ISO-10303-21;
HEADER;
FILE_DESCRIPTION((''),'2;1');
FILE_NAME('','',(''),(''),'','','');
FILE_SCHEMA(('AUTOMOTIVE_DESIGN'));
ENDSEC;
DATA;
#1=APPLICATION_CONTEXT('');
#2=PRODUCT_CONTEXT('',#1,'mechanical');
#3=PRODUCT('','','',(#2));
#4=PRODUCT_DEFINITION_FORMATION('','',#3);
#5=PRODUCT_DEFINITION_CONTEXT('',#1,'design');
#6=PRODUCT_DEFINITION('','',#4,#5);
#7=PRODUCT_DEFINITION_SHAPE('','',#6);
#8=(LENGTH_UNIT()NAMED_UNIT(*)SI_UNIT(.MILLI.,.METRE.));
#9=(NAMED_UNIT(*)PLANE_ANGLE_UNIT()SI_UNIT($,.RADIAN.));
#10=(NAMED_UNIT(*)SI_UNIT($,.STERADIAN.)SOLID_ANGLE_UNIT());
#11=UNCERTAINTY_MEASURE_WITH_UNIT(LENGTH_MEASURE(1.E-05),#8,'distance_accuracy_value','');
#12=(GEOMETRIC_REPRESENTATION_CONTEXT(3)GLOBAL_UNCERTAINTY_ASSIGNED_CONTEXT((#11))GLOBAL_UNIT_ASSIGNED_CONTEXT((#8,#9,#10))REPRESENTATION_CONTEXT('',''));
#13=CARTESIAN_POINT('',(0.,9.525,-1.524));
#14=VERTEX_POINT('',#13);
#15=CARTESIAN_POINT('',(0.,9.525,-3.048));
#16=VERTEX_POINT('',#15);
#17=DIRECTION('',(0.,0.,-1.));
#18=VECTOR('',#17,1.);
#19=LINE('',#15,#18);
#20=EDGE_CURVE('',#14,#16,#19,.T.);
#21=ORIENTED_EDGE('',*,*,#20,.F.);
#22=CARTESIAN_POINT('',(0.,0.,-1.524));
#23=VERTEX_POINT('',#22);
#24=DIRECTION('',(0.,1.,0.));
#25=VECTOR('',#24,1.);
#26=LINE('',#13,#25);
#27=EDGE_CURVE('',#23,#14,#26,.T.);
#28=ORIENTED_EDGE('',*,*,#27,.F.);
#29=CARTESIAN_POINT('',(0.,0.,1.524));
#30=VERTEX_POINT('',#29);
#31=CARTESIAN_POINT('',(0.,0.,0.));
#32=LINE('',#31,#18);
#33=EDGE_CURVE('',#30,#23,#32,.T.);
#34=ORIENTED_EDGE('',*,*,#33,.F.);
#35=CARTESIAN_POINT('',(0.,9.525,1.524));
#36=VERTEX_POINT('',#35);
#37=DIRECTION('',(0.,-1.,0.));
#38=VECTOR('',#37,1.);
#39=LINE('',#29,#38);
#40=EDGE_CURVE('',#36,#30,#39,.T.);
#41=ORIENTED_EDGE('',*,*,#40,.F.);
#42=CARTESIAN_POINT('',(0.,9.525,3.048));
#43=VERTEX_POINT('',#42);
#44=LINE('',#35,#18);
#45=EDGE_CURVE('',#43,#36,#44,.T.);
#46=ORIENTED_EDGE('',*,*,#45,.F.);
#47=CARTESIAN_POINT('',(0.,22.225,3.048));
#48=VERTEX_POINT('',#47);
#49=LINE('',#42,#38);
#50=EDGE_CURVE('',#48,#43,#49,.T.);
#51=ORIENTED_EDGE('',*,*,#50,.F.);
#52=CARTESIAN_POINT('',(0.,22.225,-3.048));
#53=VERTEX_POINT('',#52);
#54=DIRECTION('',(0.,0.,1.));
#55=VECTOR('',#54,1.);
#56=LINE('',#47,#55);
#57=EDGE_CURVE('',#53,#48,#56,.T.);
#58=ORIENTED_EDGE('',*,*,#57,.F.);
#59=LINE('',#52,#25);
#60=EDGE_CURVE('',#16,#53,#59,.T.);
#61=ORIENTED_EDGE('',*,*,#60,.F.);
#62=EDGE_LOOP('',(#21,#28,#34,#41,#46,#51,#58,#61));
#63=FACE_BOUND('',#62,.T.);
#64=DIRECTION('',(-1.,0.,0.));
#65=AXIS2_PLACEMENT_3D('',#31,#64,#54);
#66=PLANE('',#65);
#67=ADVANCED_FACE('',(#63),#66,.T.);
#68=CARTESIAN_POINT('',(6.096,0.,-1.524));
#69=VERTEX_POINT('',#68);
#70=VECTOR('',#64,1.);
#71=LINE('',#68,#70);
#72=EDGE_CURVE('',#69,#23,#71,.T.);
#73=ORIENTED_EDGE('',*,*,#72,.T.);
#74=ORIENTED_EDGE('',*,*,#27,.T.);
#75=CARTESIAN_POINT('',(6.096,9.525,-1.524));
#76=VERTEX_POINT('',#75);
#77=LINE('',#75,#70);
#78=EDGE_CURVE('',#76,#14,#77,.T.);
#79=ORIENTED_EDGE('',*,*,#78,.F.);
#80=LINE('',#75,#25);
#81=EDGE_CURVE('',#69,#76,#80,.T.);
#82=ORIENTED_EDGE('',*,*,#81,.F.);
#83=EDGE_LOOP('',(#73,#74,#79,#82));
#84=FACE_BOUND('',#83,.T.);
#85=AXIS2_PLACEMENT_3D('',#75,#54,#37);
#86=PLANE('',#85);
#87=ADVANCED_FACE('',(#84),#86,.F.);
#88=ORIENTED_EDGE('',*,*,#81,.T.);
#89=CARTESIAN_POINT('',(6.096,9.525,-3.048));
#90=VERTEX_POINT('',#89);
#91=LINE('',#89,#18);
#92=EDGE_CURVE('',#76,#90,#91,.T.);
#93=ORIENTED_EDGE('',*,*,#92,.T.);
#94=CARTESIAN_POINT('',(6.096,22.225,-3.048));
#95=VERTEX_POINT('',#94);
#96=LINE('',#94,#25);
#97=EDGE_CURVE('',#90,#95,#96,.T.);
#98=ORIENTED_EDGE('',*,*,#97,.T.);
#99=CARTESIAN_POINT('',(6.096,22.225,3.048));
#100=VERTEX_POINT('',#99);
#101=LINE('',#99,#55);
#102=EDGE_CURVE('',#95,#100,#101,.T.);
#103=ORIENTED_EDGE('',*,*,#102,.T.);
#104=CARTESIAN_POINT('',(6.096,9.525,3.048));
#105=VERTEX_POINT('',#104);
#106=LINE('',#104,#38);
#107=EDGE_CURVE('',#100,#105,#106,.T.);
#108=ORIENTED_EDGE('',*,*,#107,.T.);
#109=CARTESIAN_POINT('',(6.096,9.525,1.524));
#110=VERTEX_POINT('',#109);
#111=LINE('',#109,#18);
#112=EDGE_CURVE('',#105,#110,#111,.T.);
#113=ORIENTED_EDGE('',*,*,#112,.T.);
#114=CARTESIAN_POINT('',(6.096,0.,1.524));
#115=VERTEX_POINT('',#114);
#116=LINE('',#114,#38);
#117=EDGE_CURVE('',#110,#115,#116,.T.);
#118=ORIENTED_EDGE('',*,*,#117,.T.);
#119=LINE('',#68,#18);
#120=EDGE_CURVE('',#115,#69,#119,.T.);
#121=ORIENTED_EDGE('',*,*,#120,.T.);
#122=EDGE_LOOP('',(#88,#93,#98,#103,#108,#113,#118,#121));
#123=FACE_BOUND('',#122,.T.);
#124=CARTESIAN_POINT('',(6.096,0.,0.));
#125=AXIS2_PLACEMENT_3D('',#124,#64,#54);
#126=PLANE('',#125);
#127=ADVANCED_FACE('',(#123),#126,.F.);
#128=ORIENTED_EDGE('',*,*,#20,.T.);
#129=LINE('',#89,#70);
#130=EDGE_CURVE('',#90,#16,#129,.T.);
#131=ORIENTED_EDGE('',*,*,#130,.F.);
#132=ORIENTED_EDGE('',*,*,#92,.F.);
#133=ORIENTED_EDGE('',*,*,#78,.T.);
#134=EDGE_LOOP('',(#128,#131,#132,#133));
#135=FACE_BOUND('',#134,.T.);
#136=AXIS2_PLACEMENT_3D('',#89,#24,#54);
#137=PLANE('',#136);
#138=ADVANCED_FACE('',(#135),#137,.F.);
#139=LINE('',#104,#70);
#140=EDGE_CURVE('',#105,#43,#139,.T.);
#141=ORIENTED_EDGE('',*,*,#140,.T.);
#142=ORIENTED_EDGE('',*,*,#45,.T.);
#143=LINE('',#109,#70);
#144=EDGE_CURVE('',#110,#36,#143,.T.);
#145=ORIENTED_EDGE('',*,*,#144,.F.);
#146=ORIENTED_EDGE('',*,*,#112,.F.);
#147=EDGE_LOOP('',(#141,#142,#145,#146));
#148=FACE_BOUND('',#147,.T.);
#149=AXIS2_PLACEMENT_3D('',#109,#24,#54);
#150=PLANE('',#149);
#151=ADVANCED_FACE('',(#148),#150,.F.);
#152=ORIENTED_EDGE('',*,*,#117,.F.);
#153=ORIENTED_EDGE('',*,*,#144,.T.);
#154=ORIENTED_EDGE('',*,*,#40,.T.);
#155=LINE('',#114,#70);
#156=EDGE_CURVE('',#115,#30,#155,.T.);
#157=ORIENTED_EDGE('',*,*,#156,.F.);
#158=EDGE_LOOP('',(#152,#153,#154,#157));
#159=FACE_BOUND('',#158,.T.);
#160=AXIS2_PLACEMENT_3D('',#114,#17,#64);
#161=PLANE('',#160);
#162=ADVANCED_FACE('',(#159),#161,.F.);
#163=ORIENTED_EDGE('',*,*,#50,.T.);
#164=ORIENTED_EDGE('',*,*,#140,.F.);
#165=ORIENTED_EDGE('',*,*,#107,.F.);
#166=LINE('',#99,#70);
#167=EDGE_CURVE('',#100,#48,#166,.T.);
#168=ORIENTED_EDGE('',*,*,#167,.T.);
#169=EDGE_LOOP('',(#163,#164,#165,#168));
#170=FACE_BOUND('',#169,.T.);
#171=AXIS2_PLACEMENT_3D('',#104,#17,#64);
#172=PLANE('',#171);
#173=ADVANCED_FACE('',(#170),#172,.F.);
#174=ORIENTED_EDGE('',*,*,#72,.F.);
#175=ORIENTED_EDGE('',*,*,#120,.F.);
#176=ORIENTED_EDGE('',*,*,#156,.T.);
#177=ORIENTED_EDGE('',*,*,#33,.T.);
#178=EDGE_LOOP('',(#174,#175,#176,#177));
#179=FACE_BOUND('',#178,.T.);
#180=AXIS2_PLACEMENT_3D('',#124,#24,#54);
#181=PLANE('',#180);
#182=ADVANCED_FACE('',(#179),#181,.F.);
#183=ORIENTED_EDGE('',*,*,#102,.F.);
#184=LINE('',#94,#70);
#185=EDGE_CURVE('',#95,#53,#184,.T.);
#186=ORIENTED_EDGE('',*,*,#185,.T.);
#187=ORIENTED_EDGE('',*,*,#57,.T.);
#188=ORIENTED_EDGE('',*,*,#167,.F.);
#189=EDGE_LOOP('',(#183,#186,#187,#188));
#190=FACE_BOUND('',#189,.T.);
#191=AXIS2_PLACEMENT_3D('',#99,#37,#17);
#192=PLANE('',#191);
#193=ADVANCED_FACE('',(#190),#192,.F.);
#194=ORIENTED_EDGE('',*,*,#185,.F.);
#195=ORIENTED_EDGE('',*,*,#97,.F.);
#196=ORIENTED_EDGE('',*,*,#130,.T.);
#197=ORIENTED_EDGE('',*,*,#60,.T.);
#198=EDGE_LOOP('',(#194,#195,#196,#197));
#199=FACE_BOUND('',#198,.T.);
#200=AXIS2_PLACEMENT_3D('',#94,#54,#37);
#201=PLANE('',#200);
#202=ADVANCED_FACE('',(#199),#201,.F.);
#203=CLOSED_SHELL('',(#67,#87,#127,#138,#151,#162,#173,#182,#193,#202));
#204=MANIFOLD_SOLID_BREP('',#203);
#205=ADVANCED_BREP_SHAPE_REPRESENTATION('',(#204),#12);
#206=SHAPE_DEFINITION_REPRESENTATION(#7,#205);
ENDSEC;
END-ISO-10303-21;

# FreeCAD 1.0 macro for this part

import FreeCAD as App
import Part
import Sketcher
Q = App.Units.Quantity


def add_polygon(sketch, points):
    """Adds a closed chain of lines whose ends are joined by coincident constraints."""
    first, n = sketch.GeometryCount, len(points)
    for a, b in zip(points, points[1:] + points[:1]):
        sketch.addGeometry(Part.LineSegment(App.Vector(*a, 0), App.Vector(*b, 0)), False)
    for i in range(n):
        sketch.addConstraint(Sketcher.Constraint("Coincident", first + i, 2, first + (i + 1) % n, 1))

doc = App.newDocument("Part")
body = doc.addObject("PartDesign::Body", "Body")

sketch1 = body.newObject("Sketcher::SketchObject", "Sketch")
sketch1.AttachmentSupport = (doc.getObject("YZ_Plane"), [""])
sketch1.MapMode = "FlatFace"
add_polygon(sketch1, [(0, 1.5), (0, -1.5), (9.5, -1.5), (9.5, -3), (22.2, -3), (22.2, 3), (9.5, 3), (9.5, 1.5)])
sketch1.addConstraint([
    Sketcher.Constraint("Vertical", 0),
    Sketcher.Constraint("Horizontal", 1),
    Sketcher.Constraint("Vertical", 2),
    Sketcher.Constraint("Horizontal", 3),
    Sketcher.Constraint("Vertical", 4),
    Sketcher.Constraint("Horizontal", 5),
    Sketcher.Constraint("Vertical", 6),
    Sketcher.Constraint("Horizontal", 7),
    Sketcher.Constraint("Symmetric", 0, 2, 7, 2, -1, 1),
    Sketcher.Constraint("Symmetric", 2, 2, 5, 2, -1),
    Sketcher.Constraint("DistanceX", 3, 1, 3, 2, Q("0.5 in")),
    Sketcher.Constraint("DistanceY", 0, 2, 0, 1, Q("0.12 in")),
    Sketcher.Constraint("DistanceY", 2, 2, 2, 1, Q("0.06 in")),
    Sketcher.Constraint("DistanceX", 1, 1, 1, 2, Q("0.375 in")),
])
pad1 = body.newObject("PartDesign::Pad", "Pad")
pad1.Profile = sketch1
pad1.Length = Q("0.24 in")

doc.recompute()
